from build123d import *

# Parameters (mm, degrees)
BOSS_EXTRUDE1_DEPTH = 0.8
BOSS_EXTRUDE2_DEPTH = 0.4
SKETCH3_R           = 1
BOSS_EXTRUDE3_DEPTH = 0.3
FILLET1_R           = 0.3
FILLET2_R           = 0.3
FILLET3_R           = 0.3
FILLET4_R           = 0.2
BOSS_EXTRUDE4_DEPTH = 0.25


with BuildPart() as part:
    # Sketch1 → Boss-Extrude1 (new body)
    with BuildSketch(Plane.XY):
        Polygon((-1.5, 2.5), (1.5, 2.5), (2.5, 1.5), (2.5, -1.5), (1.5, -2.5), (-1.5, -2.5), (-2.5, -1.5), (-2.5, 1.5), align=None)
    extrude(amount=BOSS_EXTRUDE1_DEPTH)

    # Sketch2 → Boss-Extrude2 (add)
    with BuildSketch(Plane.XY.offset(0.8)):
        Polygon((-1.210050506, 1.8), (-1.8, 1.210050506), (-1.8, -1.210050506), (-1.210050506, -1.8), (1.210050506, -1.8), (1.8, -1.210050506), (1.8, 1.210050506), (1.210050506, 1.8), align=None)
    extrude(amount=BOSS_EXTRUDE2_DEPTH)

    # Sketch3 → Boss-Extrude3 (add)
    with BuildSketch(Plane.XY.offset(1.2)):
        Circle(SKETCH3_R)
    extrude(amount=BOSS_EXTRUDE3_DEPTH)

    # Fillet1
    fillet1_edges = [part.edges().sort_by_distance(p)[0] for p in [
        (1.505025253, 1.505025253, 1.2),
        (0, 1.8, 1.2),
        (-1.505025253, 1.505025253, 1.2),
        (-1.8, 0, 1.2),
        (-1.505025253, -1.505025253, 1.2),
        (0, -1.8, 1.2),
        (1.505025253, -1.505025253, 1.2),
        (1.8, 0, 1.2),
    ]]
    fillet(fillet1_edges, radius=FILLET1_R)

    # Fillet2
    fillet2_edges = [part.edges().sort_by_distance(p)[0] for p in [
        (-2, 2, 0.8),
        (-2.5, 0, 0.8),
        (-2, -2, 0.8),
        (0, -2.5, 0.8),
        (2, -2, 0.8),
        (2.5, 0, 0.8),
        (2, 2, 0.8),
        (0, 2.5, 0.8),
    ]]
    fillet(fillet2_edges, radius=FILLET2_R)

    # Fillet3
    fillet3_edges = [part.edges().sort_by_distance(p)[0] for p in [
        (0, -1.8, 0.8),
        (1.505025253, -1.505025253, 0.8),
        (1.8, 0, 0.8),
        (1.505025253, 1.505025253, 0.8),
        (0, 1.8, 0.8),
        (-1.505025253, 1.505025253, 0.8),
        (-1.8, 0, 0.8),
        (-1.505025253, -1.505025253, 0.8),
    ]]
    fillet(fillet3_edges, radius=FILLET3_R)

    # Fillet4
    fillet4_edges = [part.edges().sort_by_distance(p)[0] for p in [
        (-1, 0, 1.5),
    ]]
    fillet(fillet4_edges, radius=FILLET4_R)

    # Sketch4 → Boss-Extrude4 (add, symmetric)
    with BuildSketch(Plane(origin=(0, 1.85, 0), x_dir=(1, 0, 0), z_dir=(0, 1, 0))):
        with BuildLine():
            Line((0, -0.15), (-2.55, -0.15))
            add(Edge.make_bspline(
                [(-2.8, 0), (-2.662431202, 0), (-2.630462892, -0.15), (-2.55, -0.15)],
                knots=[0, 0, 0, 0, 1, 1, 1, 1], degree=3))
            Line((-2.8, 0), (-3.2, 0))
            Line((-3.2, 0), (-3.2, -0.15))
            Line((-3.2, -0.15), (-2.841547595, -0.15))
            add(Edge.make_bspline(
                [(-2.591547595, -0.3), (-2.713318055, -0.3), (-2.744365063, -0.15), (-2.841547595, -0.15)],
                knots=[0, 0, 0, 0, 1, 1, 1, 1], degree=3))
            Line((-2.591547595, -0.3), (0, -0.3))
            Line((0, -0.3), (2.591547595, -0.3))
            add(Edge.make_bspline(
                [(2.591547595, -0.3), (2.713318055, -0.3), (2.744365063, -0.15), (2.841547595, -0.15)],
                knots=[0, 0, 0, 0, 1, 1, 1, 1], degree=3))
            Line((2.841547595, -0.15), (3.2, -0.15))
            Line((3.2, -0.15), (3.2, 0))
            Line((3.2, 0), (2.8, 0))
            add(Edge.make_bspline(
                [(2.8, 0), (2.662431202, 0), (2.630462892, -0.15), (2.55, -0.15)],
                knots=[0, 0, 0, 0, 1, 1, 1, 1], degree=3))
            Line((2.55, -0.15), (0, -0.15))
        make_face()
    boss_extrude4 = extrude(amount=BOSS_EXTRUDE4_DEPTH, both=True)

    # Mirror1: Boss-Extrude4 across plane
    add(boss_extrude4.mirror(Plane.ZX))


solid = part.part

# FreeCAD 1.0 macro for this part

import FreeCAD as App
import Part
import Sketcher
Q = App.Units.Quantity


def edges_at(feature, points):
    """Names of the edges that pass closest to the given points."""
    edges = feature.Shape.Edges
    near = lambda p: min(range(len(edges)), key=lambda i: edges[i].distToShape(Part.Vertex(*p))[0])
    return sorted({f"Edge{near(p) + 1}" for p in points})


def add_polygon(sketch, points):
    """Adds a closed chain of lines whose ends are joined by coincident constraints."""
    first, n = sketch.GeometryCount, len(points)
    for a, b in zip(points, points[1:] + points[:1]):
        sketch.addGeometry(Part.LineSegment(App.Vector(*a, 0), App.Vector(*b, 0)), False)
    for i in range(n):
        sketch.addConstraint(Sketcher.Constraint("Coincident", first + i, 2, first + (i + 1) % n, 1))

doc = App.newDocument("Part")
params = doc.addObject("Spreadsheet::Sheet", "Params")
for row, (alias, value) in enumerate([
    ("sketch1_width", "3 mm"),
    ("pad1_length", "0.8 mm"),
    ("pad2_length", "0.4 mm"),
    ("sketch3_diameter", "2 mm"),
    ("pad3_length", "0.3 mm"),
    ("fillet_radius", "0.3 mm"),
    ("fillet2_radius", "0.3 mm"),
    ("fillet3_radius", "0.3 mm"),
    ("fillet4_radius", "0.2 mm"),
    ("sketch4_width", "0.4 mm"),
    ("pad4_length", "0.5 mm"),
], start=1):
    params.set(f"A{row}", alias)
    params.set(f"B{row}", "=" + value)
    params.setAlias(f"B{row}", alias)

body = doc.addObject("PartDesign::Body", "Body")

sketch1 = body.newObject("Sketcher::SketchObject", "Sketch")
sketch1.AttachmentSupport = (doc.getObject("XY_Plane"), [""])
sketch1.MapMode = "FlatFace"
add_polygon(sketch1, [(1.5, 2.5), (-1.5, 2.5), (-2.5, 1.5), (-2.5, -1.5), (-1.5, -2.5), (1.5, -2.5), (2.5, -1.5), (2.5, 1.5)])
sketch1.addConstraint(Sketcher.Constraint("Horizontal", 0))
sketch1.addConstraint(Sketcher.Constraint("Vertical", 2))
sketch1.addConstraint(Sketcher.Constraint("Horizontal", 4))
sketch1.addConstraint(Sketcher.Constraint("Vertical", 6))
sketch1.addConstraint(Sketcher.Constraint("Symmetric", 0, 2, 4, 2, -1, 1))
sketch1.addConstraint(Sketcher.Constraint("Symmetric", 1, 2, 5, 2, -1, 1))
sketch1.addConstraint(Sketcher.Constraint("Perpendicular", 1, 3))
sketch1.addConstraint(Sketcher.Constraint("Perpendicular", 5, 7))
sketch1.addConstraint(Sketcher.Constraint("Horizontal", 2, 2, 5, 2))
sketch1.addConstraint(Sketcher.Constraint("Horizontal", 1, 2, 6, 2))
sketch1.addConstraint(Sketcher.Constraint("Vertical", 0, 2, 3, 2))
sketch1.addConstraint(Sketcher.Constraint("Equal", 4, 2))
sketch1.addConstraint(Sketcher.Constraint("DistanceX", 0, 2, 0, 1, Q("3 mm")))
sketch1.addConstraint(Sketcher.Constraint("DistanceX", 1, 2, 0, 2, Q("1 mm")))
sketch1.setExpression("Constraints[20]", "Params.sketch1_width")
pad1 = body.newObject("PartDesign::Pad", "Pad")
pad1.Profile = sketch1
pad1.setExpression("Length", "Params.pad1_length")

sketch2 = body.newObject("Sketcher::SketchObject", "Sketch001")
sketch2.AttachmentSupport = (doc.getObject("XY_Plane"), [""])
sketch2.MapMode = "FlatFace"
sketch2.AttachmentOffset = App.Placement(App.Vector(0, 0, 0.8), App.Rotation())
add_polygon(sketch2, [(-1.210051, 1.8), (-1.8, 1.210051), (-1.8, -1.210051), (-1.210051, -1.8), (1.210051, -1.8), (1.8, -1.210051), (1.8, 1.210051), (1.210051, 1.8)])
sketch2.addConstraint(Sketcher.Constraint("Vertical", 1))
sketch2.addConstraint(Sketcher.Constraint("Horizontal", 3))
sketch2.addConstraint(Sketcher.Constraint("Vertical", 5))
sketch2.addConstraint(Sketcher.Constraint("Horizontal", 7))
sketch2.addConstraint(Sketcher.Constraint("Symmetric", 0, 2, 4, 2, -1, 1))
sketch2.addConstraint(Sketcher.Constraint("Symmetric", 2, 2, 6, 2, -1, 1))
sketch2.addConstraint(Sketcher.Constraint("Perpendicular", 0, 2))
sketch2.addConstraint(Sketcher.Constraint("Perpendicular", 2, 4))
sketch2.addConstraint(Sketcher.Constraint("Perpendicular", 4, 6))
sketch2.addConstraint(Sketcher.Constraint("Horizontal", 1, 2, 4, 2))
sketch2.addConstraint(Sketcher.Constraint("Vertical", 3, 2, 6, 2))
sketch2.addConstraint(Sketcher.Constraint("Equal", 7, 1))
sketch2.addConstraint(Sketcher.Constraint("DistanceX", 0, 2, -1, 1, Q("1.8 mm")))
sketch2.addConstraint(Sketcher.Constraint("DistanceX", 3, 1, 3, 2, Q("2.420101 mm")))
pad2 = body.newObject("PartDesign::Pad", "Pad001")
pad2.Profile = sketch2
pad2.setExpression("Length", "Params.pad2_length")

sketch3 = body.newObject("Sketcher::SketchObject", "Sketch002")
sketch3.AttachmentSupport = (doc.getObject("XY_Plane"), [""])
sketch3.MapMode = "FlatFace"
sketch3.AttachmentOffset = App.Placement(App.Vector(0, 0, 1.2), App.Rotation())
sketch3.addGeometry(Part.Circle(App.Vector(0, 0, 0), App.Vector(0, 0, 1), 1), False)
sketch3.addConstraint(Sketcher.Constraint("Coincident", 0, 3, -1, 1))
sketch3.addConstraint(Sketcher.Constraint("Diameter", 0, Q("2 mm")))
sketch3.setExpression("Constraints[1]", "Params.sketch3_diameter")
pad3 = body.newObject("PartDesign::Pad", "Pad002")
pad3.Profile = sketch3
pad3.setExpression("Length", "Params.pad3_length")
doc.recompute()

fillet = body.newObject("PartDesign::Fillet", "Fillet")
fillet.Base = (pad3, edges_at(pad3, [
    (1.505, 1.505, 1.2),
    (0, 1.8, 1.2),
    (-1.505, 1.505, 1.2),
    (-1.8, 0, 1.2),
    (-1.505, -1.505, 1.2),
    (0, -1.8, 1.2),
    (1.505, -1.505, 1.2),
    (1.8, 0, 1.2),
]))
fillet.setExpression("Radius", "Params.fillet_radius")
doc.recompute()

fillet2 = body.newObject("PartDesign::Fillet", "Fillet001")
fillet2.Base = (fillet, edges_at(fillet, [
    (-2, 2, 0.8),
    (-2.5, 0, 0.8),
    (-2, -2, 0.8),
    (0, -2.5, 0.8),
    (2, -2, 0.8),
    (2.5, 0, 0.8),
    (2, 2, 0.8),
    (0, 2.5, 0.8),
]))
fillet2.setExpression("Radius", "Params.fillet2_radius")
doc.recompute()

fillet3 = body.newObject("PartDesign::Fillet", "Fillet002")
fillet3.Base = (fillet2, edges_at(fillet2, [
    (0, -1.8, 0.8),
    (1.505, -1.505, 0.8),
    (1.8, 0, 0.8),
    (1.505, 1.505, 0.8),
    (0, 1.8, 0.8),
    (-1.505, 1.505, 0.8),
    (-1.8, 0, 0.8),
    (-1.505, -1.505, 0.8),
]))
fillet3.setExpression("Radius", "Params.fillet3_radius")
doc.recompute()

fillet4 = body.newObject("PartDesign::Fillet", "Fillet003")
fillet4.Base = (fillet3, edges_at(fillet3, [(-1, 0, 1.5)]))
fillet4.setExpression("Radius", "Params.fillet4_radius")

sketch4 = body.newObject("Sketcher::SketchObject", "Sketch003")
sketch4.AttachmentSupport = (doc.getObject("XZ_Plane"), [""])
sketch4.MapMode = "FlatFace"
sketch4.AttachmentOffset = App.Placement(App.Vector(0, 0, -1.85), App.Rotation())
sketch4.addGeometry(Part.BSplineCurve([App.Vector(-2.8, 0, 0), App.Vector(-2.662431, 0, 0), App.Vector(-2.630463, 0.15, 0), App.Vector(-2.55, 0.15, 0)], [4, 4], [0, 1], False, 3, [1, 1, 1, 1], False), False)
sketch4.addGeometry(Part.LineSegment(App.Vector(-2.8, 0, 0), App.Vector(-3.2, 0, 0)), False)
sketch4.addGeometry(Part.LineSegment(App.Vector(-3.2, 0, 0), App.Vector(-3.2, 0.15, 0)), False)
sketch4.addGeometry(Part.LineSegment(App.Vector(-3.2, 0.15, 0), App.Vector(-2.841548, 0.15, 0)), False)
sketch4.addGeometry(Part.BSplineCurve([App.Vector(-2.591548, 0.3, 0), App.Vector(-2.713318, 0.3, 0), App.Vector(-2.744365, 0.15, 0), App.Vector(-2.841548, 0.15, 0)], [4, 4], [0, 1], False, 3, [1, 1, 1, 1], False), False)
sketch4.addGeometry(Part.LineSegment(App.Vector(-2.591548, 0.3, 0), App.Vector(2.591548, 0.3, 0)), False)
sketch4.addGeometry(Part.BSplineCurve([App.Vector(2.591548, 0.3, 0), App.Vector(2.713318, 0.3, 0), App.Vector(2.744365, 0.15, 0), App.Vector(2.841548, 0.15, 0)], [4, 4], [0, 1], False, 3, [1, 1, 1, 1], False), False)
sketch4.addGeometry(Part.LineSegment(App.Vector(2.841548, 0.15, 0), App.Vector(3.2, 0.15, 0)), False)
sketch4.addGeometry(Part.LineSegment(App.Vector(3.2, 0.15, 0), App.Vector(3.2, 0, 0)), False)
sketch4.addGeometry(Part.LineSegment(App.Vector(3.2, 0, 0), App.Vector(2.8, 0, 0)), False)
sketch4.addGeometry(Part.BSplineCurve([App.Vector(2.8, 0, 0), App.Vector(2.662431, 0, 0), App.Vector(2.630463, 0.15, 0), App.Vector(2.55, 0.15, 0)], [4, 4], [0, 1], False, 3, [1, 1, 1, 1], False), False)
sketch4.addGeometry(Part.LineSegment(App.Vector(2.55, 0.15, 0), App.Vector(-2.55, 0.15, 0)), False)
sketch4.addConstraint(Sketcher.Constraint("Block", 0))
sketch4.addConstraint(Sketcher.Constraint("Block", 4))
sketch4.addConstraint(Sketcher.Constraint("Block", 6))
sketch4.addConstraint(Sketcher.Constraint("Block", 10))
sketch4.addConstraint(Sketcher.Constraint("Coincident", 0, 1, 1, 1))
sketch4.addConstraint(Sketcher.Constraint("Coincident", 1, 2, 2, 1))
sketch4.addConstraint(Sketcher.Constraint("Coincident", 2, 2, 3, 1))
sketch4.addConstraint(Sketcher.Constraint("Coincident", 3, 2, 4, 2))
sketch4.addConstraint(Sketcher.Constraint("Coincident", 4, 1, 5, 1))
sketch4.addConstraint(Sketcher.Constraint("Coincident", 5, 2, 6, 1))
sketch4.addConstraint(Sketcher.Constraint("Coincident", 6, 2, 7, 1))
sketch4.addConstraint(Sketcher.Constraint("Coincident", 7, 2, 8, 1))
sketch4.addConstraint(Sketcher.Constraint("Coincident", 8, 2, 9, 1))
sketch4.addConstraint(Sketcher.Constraint("Coincident", 9, 2, 10, 1))
sketch4.addConstraint(Sketcher.Constraint("Coincident", 10, 2, 11, 1))
sketch4.addConstraint(Sketcher.Constraint("Coincident", 11, 2, 0, 2))
sketch4.addConstraint(Sketcher.Constraint("Horizontal", 1))
sketch4.addConstraint(Sketcher.Constraint("Vertical", 2))
sketch4.addConstraint(Sketcher.Constraint("Horizontal", 3))
sketch4.addConstraint(Sketcher.Constraint("Horizontal", 7))
sketch4.addConstraint(Sketcher.Constraint("Vertical", 8))
sketch4.addConstraint(Sketcher.Constraint("Horizontal", 9))
sketch4.addConstraint(Sketcher.Constraint("Equal", 3, 7))
sketch4.addConstraint(Sketcher.Constraint("DistanceX", 1, 2, 1, 1, Q("0.4 mm")))
sketch4.setExpression("Constraints[23]", "Params.sketch4_width")
pad4 = body.newObject("PartDesign::Pad", "Pad003")
pad4.Profile = sketch4
pad4.setExpression("Length", "Params.pad4_length")
pad4.Midplane = True
doc.recompute()

mirrored = body.newObject("PartDesign::Mirrored", "Mirrored")
mirrored.Originals = [pad4]
mirrored.MirrorPlane = (doc.getObject("XZ_Plane"), [""])
body.Tip = mirrored

doc.recompute()
